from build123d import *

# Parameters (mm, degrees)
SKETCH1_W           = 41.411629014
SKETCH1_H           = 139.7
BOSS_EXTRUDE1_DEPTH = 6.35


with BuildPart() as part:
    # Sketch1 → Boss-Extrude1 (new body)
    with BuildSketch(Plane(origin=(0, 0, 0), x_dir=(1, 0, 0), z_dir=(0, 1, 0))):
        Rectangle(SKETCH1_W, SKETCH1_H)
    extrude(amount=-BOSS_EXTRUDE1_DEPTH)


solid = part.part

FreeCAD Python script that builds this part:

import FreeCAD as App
import Part
import Sketcher

V = App.Vector
Q = App.Units.Quantity

doc = App.newDocument("Part")
body = doc.addObject("PartDesign::Body", "Body")

sketch1 = body.newObject("Sketcher::SketchObject", "Sketch")
sketch1.AttachmentSupport = (doc.getObject("XZ_Plane"), [""])
sketch1.MapMode = "FlatFace"
sketch1.addGeometry([
    Part.LineSegment(V(-21, -70, 0), V(-21, 70, 0)),
    Part.LineSegment(V(-21, 70, 0), V(21, 70, 0)),
    Part.LineSegment(V(21, 70, 0), V(21, -70, 0)),
    Part.LineSegment(V(21, -70, 0), V(-21, -70, 0)),
], False)
sketch1.addConstraint([
    Sketcher.Constraint("Coincident", 0, 2, 1, 1),
    Sketcher.Constraint("Coincident", 1, 2, 2, 1),
    Sketcher.Constraint("Coincident", 2, 2, 3, 1),
    Sketcher.Constraint("Coincident", 3, 2, 0, 1),
    Sketcher.Constraint("Vertical", 0),
    Sketcher.Constraint("Horizontal", 1),
    Sketcher.Constraint("Vertical", 2),
    Sketcher.Constraint("Horizontal", 3),
    Sketcher.Constraint("Symmetric", 0, 2, 2, 2, -1, 1),
    Sketcher.Constraint("DistanceY", 0, 1, 0, 2, Q("5.5 in")),
    Sketcher.Constraint("DistanceX", 1, 1, 1, 2, 41.411629),
])
pad1 = body.newObject("PartDesign::Pad", "Pad")
pad1.Profile = sketch1
pad1.Length = Q("0.25 in")

doc.recompute()
